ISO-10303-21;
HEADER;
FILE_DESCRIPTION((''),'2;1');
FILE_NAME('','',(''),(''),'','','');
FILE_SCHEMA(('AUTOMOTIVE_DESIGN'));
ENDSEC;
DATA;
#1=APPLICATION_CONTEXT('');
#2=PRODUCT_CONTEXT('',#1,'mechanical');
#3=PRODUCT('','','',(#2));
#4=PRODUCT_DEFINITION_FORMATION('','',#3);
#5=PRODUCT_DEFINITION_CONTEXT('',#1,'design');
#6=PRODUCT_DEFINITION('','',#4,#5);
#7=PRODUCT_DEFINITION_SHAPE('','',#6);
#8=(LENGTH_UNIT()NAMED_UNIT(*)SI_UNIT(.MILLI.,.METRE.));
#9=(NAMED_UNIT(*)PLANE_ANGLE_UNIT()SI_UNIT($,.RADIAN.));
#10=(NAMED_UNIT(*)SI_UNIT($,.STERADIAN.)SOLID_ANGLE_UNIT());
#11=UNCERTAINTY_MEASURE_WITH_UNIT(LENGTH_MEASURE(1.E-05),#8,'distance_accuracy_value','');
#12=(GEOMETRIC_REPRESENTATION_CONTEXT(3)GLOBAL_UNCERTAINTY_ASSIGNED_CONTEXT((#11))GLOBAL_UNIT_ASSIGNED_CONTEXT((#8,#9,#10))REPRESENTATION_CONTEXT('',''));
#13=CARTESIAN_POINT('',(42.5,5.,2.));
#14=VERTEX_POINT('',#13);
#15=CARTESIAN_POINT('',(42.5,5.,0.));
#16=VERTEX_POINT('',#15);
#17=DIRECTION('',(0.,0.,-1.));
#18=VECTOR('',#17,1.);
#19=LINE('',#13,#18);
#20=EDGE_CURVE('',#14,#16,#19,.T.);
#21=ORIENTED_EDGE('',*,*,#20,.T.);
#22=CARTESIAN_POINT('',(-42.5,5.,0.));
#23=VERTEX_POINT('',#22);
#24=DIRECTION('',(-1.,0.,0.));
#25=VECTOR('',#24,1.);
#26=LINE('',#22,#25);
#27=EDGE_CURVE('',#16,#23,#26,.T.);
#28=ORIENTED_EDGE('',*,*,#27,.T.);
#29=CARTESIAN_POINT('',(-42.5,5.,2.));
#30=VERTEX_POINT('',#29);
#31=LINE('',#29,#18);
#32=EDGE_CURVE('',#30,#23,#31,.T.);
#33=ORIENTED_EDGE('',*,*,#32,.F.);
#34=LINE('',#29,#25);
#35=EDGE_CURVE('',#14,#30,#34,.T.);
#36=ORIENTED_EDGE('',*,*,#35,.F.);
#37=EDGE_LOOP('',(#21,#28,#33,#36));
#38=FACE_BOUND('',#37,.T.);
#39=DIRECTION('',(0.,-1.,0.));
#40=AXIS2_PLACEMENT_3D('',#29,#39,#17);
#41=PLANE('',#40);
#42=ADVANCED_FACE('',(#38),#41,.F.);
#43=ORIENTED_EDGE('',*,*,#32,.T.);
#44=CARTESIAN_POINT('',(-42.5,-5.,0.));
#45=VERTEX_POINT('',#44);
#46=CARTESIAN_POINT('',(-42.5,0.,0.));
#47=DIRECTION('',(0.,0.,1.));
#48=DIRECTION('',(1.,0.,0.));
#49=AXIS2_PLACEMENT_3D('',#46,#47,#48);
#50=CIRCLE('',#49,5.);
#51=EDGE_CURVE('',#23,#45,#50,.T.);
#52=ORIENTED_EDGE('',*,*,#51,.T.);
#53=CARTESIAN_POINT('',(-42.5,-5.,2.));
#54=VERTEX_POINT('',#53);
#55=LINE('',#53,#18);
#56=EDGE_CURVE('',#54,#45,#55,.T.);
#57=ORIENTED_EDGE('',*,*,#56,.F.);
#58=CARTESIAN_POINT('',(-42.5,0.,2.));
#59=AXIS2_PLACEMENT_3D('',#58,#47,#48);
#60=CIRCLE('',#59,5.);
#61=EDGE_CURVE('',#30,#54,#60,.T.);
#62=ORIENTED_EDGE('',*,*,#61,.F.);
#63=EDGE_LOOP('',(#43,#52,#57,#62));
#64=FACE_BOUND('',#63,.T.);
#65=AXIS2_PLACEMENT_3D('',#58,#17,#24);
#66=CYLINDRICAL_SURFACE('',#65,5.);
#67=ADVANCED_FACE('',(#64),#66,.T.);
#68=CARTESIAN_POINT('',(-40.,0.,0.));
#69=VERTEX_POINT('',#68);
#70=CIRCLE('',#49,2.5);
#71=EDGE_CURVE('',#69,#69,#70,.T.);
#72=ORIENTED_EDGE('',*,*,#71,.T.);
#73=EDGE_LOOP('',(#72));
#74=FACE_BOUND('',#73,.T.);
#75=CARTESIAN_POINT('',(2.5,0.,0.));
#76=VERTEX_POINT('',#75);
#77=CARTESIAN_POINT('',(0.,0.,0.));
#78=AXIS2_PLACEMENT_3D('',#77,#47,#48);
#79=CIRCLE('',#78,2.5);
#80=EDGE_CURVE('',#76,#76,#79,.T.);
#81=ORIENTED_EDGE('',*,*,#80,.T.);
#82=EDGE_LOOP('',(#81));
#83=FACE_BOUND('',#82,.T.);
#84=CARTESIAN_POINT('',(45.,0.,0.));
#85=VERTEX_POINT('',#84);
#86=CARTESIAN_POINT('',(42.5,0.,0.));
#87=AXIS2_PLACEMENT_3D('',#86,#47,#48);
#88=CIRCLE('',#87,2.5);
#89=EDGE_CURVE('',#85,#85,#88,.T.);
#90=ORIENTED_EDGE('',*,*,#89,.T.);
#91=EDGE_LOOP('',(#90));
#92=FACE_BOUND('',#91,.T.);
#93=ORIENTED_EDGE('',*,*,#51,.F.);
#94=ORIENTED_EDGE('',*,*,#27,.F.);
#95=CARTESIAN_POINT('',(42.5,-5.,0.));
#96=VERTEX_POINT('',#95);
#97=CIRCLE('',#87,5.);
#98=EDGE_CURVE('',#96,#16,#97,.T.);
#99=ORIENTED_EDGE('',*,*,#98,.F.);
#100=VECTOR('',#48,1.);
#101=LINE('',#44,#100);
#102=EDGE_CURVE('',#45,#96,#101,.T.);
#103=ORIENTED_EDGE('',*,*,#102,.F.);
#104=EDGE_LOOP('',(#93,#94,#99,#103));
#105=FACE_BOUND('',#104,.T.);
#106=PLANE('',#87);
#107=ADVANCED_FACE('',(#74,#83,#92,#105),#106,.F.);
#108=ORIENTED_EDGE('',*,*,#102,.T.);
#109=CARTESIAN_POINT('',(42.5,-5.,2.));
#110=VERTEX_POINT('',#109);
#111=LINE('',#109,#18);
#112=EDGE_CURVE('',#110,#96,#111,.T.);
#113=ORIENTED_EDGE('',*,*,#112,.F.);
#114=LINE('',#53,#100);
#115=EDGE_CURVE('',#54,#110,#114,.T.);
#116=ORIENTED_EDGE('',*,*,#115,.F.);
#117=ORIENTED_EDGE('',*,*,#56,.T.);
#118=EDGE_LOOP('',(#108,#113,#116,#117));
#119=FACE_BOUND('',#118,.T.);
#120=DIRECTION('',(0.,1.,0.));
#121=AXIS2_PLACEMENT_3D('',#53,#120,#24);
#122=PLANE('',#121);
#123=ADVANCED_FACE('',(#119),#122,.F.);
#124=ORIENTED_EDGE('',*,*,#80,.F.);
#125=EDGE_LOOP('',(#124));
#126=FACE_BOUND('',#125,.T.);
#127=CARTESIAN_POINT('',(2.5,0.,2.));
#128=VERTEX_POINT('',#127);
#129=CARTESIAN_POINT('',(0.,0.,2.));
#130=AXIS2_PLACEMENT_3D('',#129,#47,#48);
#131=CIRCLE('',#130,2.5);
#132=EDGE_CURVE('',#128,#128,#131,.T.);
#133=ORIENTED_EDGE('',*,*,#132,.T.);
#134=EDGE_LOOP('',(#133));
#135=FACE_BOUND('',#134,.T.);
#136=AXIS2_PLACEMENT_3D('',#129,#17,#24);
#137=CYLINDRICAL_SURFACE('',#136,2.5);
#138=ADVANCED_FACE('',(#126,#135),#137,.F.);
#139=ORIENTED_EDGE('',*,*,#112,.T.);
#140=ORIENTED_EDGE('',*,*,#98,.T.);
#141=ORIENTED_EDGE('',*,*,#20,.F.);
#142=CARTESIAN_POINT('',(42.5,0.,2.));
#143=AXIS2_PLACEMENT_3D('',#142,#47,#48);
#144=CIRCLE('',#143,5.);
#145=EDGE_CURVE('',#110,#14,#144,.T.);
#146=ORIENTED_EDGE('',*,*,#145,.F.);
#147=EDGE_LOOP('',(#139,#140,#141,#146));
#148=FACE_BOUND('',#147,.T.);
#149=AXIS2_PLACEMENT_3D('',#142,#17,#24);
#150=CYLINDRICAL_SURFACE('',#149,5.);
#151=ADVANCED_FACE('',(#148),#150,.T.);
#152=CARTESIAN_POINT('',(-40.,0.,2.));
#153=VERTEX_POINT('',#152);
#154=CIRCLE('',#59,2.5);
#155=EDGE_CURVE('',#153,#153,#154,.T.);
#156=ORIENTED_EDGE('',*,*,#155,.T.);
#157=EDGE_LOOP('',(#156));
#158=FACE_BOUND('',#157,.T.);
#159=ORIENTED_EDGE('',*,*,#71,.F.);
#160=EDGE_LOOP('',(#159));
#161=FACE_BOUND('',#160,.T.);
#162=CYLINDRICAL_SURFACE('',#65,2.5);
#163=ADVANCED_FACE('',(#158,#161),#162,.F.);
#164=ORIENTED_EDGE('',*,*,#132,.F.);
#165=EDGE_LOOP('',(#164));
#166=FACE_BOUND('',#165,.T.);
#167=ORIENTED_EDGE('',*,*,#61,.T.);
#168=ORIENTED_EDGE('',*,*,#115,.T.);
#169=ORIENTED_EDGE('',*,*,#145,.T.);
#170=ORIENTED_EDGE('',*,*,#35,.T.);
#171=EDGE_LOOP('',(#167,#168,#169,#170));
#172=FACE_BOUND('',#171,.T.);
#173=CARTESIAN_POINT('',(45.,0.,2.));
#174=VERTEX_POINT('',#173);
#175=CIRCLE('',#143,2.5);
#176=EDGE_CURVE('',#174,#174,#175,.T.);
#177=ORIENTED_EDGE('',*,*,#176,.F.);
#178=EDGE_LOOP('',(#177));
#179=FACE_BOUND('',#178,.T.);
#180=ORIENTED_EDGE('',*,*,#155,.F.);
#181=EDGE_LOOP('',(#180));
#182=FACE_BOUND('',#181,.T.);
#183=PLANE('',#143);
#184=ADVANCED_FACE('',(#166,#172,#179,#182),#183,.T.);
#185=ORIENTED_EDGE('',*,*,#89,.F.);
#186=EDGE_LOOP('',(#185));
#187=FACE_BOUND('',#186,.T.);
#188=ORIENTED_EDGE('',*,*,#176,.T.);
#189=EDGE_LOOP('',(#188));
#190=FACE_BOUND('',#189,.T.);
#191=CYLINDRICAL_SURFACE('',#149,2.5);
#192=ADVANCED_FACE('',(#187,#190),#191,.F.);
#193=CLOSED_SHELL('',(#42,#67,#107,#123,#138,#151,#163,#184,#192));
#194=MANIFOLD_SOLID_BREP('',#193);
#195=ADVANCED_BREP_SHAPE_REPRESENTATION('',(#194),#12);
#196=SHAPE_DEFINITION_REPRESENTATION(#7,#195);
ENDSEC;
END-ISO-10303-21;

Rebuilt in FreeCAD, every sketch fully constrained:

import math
import FreeCAD as App
import Part
import Sketcher
from FreeCAD import Vector

doc = App.newDocument("Part")
body = doc.addObject("PartDesign::Body", "Body")

# Sketch on XY plane
sketch1 = body.newObject("Sketcher::SketchObject", "Sketch")
sketch1.AttachmentSupport = (doc.getObject("XY_Plane"), [""])
sketch1.MapMode = "FlatFace"
sketch1.addGeometry([
    Part.LineSegment(Vector(-42.5, -5, 0), Vector(42.5, -5, 0)),  # 0
    Part.ArcOfCircle(Part.Circle(Vector(42.5, 0, 0), Vector(0, 0, 1), 5), math.radians(-90), math.radians(90)),  # 1
    Part.LineSegment(Vector(42.5, 5, 0), Vector(-42.5, 5, 0)),  # 2
    Part.ArcOfCircle(Part.Circle(Vector(-42.5, 0, 0), Vector(0, 0, 1), 5), math.radians(90), math.radians(270)),  # 3
    Part.Circle(Vector(-42.5, 0, 0), Vector(0, 0, 1), 2.5),  # 4
    Part.Circle(Vector(0, 0, 0), Vector(0, 0, 1), 2.5),  # 5
    Part.Circle(Vector(42.5, 0, 0), Vector(0, 0, 1), 2.5),  # 6
], False)
sketch1.addConstraint([
    Sketcher.Constraint("Tangent", 0, 2, 1, 1),
    Sketcher.Constraint("Tangent", 1, 2, 2, 1),
    Sketcher.Constraint("Tangent", 2, 2, 3, 1),
    Sketcher.Constraint("Tangent", 3, 2, 0, 1),
    Sketcher.Constraint("Horizontal", 0),
    Sketcher.Constraint("Horizontal", 2),
    Sketcher.Constraint("Coincident", 5, 3, -1, 1),
    Sketcher.Constraint("Coincident", 4, 3, 3, 3),
    Sketcher.Constraint("Coincident", 6, 3, 1, 3),
    Sketcher.Constraint("Equal", 4, 5),
    Sketcher.Constraint("Equal", 5, 6),
    Sketcher.Constraint("Symmetric", 1, 3, 3, 3, -1, 1),
    Sketcher.Constraint("Diameter", 4, 5.0),
    Sketcher.Constraint("Radius", 1, 5.0),
    Sketcher.Constraint("DistanceX", 0, 1, 0, 2, 85.0),
])
pad1 = body.newObject("PartDesign::Pad", "Pad")
pad1.Profile = sketch1
pad1.Length = 2

doc.recompute()
